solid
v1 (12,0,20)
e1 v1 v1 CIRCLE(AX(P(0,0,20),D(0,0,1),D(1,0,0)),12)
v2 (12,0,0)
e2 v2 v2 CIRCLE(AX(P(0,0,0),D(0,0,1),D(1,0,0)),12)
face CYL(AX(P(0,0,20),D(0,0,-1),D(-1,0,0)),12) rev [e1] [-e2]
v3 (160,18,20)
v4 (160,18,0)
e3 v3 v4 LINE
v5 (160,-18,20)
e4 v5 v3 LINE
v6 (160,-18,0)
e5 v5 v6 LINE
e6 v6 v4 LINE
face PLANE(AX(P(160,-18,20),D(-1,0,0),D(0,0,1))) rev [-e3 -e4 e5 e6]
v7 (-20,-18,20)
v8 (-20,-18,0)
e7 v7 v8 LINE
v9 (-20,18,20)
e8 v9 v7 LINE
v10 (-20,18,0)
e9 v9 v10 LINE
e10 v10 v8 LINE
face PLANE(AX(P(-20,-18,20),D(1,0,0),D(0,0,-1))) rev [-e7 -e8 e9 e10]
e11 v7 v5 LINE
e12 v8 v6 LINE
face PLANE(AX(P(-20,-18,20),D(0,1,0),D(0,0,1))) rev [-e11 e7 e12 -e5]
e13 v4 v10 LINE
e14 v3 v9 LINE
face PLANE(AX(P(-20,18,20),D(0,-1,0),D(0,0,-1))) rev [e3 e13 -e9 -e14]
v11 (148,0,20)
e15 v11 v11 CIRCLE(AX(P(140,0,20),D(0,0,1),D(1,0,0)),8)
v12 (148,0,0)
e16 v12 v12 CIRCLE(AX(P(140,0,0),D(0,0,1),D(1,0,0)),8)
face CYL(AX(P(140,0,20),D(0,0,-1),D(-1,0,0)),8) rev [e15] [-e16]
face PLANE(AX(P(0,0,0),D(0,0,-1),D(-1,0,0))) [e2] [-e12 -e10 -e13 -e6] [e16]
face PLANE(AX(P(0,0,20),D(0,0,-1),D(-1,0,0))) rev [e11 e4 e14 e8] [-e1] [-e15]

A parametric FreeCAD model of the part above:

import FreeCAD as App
import Part
import Sketcher
from FreeCAD import Vector


def add_polygon(sketch, points):
    """Adds a closed chain of lines whose ends are joined by coincident constraints."""
    first, n = sketch.GeometryCount, len(points)
    for a, b in zip(points, points[1:] + points[:1]):
        sketch.addGeometry(Part.LineSegment(App.Vector(*a, 0), App.Vector(*b, 0)), False)
    for i in range(n):
        sketch.addConstraint(Sketcher.Constraint("Coincident", first + i, 2, first + (i + 1) % n, 1))

doc = App.newDocument("Part")
body = doc.addObject("PartDesign::Body", "Body")

# Sketch on XY plane
sketch1 = body.newObject("Sketcher::SketchObject", "Sketch")
sketch1.AttachmentSupport = (doc.getObject("XY_Plane"), [""])
sketch1.MapMode = "FlatFace"
add_polygon(sketch1, [(-20, 18), (-20, -18), (160, -18), (160, 18)])  # lines 0-3
sketch1.addGeometry(Part.Circle(Vector(0, 0, 0), Vector(0, 0, 1), 12), False)  # 4
sketch1.addGeometry(Part.Circle(Vector(140, 0, 0), Vector(0, 0, 1), 8), False)  # 5
sketch1.addConstraint([
    Sketcher.Constraint("Vertical", 0),
    Sketcher.Constraint("Horizontal", 1),
    Sketcher.Constraint("Vertical", 2),
    Sketcher.Constraint("Horizontal", 3),
    Sketcher.Constraint("Coincident", 4, 3, -1, 1),
    Sketcher.Constraint("PointOnObject", 5, 3, -1),
    Sketcher.Constraint("Diameter", 4, 24.0),
    Sketcher.Constraint("Diameter", 5, 16.0),
    Sketcher.Constraint("DistanceX", 1, 1, 1, 2, 180.0),
    Sketcher.Constraint("DistanceY", 0, 2, 0, 1, 36.0),
    Sketcher.Constraint("DistanceX", -1, 1, 5, 3, 140.0),
    Sketcher.Constraint("DistanceX", 0, 2, -1, 1, 20.0),
    Sketcher.Constraint("DistanceY", 0, 2, -1, 1, 18.0),
])
pad1 = body.newObject("PartDesign::Pad", "Pad")
pad1.Profile = sketch1
pad1.Length = 20

doc.recompute()
